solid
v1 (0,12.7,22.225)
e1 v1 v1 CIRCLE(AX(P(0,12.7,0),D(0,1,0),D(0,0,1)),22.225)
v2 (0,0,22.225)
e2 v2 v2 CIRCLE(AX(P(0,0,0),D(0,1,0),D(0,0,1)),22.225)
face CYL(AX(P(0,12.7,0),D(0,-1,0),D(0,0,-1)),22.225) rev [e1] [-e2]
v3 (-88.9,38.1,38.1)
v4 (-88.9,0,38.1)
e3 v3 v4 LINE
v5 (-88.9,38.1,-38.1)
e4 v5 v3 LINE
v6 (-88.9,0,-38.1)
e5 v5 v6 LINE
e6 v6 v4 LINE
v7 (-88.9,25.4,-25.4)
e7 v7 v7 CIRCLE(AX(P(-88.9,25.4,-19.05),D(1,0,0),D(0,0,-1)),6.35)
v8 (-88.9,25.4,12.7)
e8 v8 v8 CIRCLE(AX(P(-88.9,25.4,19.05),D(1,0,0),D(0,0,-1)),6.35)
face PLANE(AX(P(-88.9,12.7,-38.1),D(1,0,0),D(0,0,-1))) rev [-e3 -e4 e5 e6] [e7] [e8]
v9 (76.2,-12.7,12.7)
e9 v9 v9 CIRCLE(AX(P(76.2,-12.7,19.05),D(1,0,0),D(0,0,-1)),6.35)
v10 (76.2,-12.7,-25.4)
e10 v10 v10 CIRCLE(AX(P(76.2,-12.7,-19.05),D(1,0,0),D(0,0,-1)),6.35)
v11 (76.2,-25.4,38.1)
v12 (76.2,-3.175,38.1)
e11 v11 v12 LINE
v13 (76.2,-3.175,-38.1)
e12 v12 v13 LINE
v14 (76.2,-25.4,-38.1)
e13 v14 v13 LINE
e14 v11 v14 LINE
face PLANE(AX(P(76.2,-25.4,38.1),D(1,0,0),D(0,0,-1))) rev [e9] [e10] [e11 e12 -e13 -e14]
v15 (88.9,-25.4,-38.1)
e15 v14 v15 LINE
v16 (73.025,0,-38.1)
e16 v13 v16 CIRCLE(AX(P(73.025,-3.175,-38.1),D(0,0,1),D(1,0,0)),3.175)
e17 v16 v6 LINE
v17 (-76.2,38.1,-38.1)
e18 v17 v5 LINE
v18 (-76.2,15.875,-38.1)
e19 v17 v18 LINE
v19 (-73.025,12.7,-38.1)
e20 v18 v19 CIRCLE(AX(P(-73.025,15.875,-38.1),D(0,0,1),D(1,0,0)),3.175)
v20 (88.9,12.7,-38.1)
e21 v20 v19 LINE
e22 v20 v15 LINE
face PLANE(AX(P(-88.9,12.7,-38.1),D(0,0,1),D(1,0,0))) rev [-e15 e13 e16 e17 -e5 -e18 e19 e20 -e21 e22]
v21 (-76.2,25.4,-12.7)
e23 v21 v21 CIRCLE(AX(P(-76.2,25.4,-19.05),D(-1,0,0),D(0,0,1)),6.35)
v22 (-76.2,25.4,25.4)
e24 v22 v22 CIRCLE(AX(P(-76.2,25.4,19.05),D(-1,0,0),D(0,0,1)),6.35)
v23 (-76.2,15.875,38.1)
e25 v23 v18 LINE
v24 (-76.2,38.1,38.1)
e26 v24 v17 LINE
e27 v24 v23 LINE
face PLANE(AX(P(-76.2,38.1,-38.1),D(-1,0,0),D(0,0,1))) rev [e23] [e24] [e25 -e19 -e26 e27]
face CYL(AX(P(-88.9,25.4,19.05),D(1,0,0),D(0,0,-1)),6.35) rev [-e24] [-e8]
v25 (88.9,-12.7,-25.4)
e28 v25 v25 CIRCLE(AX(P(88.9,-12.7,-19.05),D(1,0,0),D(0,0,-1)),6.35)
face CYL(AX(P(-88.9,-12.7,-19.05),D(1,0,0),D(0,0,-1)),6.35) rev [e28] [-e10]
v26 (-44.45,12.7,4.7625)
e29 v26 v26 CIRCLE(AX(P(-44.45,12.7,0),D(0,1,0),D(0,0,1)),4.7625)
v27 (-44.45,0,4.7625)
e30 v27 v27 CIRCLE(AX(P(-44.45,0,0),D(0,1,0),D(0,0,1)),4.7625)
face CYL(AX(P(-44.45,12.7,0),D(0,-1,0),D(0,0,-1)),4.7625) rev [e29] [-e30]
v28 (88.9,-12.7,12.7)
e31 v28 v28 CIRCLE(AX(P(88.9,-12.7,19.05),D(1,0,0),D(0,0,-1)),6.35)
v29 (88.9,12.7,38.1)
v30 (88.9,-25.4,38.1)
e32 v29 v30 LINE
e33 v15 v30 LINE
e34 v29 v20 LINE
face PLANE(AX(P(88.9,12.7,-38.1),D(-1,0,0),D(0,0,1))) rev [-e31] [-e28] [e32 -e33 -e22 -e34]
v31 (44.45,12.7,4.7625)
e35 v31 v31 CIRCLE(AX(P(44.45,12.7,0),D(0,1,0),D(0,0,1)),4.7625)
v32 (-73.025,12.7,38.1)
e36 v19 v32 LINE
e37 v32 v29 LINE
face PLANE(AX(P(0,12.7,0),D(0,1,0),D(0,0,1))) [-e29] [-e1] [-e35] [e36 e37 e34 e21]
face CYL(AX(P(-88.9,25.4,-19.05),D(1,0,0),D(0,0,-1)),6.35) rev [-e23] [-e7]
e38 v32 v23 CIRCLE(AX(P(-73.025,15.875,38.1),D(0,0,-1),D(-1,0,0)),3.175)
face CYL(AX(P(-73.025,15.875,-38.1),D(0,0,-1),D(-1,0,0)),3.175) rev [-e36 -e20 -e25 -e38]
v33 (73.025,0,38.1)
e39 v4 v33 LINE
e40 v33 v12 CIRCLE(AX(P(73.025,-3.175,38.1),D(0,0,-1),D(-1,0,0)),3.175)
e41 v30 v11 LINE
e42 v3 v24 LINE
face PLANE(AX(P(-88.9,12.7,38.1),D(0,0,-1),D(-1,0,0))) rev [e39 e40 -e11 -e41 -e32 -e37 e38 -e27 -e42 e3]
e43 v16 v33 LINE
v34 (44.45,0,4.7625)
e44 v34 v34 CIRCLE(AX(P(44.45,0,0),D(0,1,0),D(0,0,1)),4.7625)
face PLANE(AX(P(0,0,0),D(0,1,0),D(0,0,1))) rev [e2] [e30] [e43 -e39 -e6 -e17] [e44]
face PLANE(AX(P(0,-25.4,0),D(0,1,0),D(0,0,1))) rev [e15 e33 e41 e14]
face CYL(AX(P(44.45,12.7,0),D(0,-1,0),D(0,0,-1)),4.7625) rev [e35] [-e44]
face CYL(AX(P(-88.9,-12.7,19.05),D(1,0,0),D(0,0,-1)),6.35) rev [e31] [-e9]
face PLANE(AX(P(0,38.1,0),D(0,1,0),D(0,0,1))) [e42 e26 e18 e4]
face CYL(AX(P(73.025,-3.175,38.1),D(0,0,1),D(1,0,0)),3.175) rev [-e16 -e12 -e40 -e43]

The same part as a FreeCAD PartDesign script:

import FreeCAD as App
import Part
import Sketcher
from FreeCAD import Vector
Q = App.Units.Quantity


def edges_at(feature, points):
    """Names of the edges that pass closest to the given points."""
    edges = feature.Shape.Edges
    near = lambda p: min(range(len(edges)), key=lambda i: edges[i].distToShape(Part.Vertex(*p))[0])
    return sorted({f"Edge{near(p) + 1}" for p in points})

doc = App.newDocument("Part")
params = doc.addObject("Spreadsheet::Sheet", "Params")
for row, (alias, value) in enumerate([
    ("sketch1_diameter", "1.75 in"),
    ("sketch1_width", "7 in"),
    ("sketch1_height", "3 in"),
    ("sketch1_diameter2", "0.375 in"),
    ("pad1_length", "0.5 in"),
    ("sketch2_height", "3 in"),
    ("sketch2_width", "0.5 in"),
    ("pad2_length", "1 in"),
    ("sketch3_height", "3 in"),
    ("sketch3_width", "0.5 in"),
    ("pad3_length", "1 in"),
    ("sketch4_diameter", "0.5 in"),
    ("fillet_radius", "0.125 in"),
], start=1):
    params.set(f"A{row}", alias)
    params.set(f"B{row}", "=" + value)
    params.setAlias(f"B{row}", alias)

body = doc.addObject("PartDesign::Body", "Body")

# Sketch on XZ plane
sketch1 = body.newObject("Sketcher::SketchObject", "Sketch")
sketch1.AttachmentSupport = (doc.getObject("XZ_Plane"), [""])
sketch1.MapMode = "FlatFace"
sketch1.addGeometry(Part.LineSegment(Vector(-88.9, -38.1, 0), Vector(-88.9, 38.1, 0)), False)
sketch1.addGeometry(Part.LineSegment(Vector(-88.9, 38.1, 0), Vector(88.9, 38.1, 0)), False)
sketch1.addGeometry(Part.LineSegment(Vector(88.9, 38.1, 0), Vector(88.9, -38.1, 0)), False)
sketch1.addGeometry(Part.LineSegment(Vector(88.9, -38.1, 0), Vector(-88.9, -38.1, 0)), False)
sketch1.addGeometry(Part.Circle(Vector(-44.45, 0, 0), Vector(0, 0, 1), 4.7625), False)
sketch1.addGeometry(Part.Circle(Vector(0, 0, 0), Vector(0, 0, 1), 22.225), False)
sketch1.addGeometry(Part.Circle(Vector(44.45, 0, 0), Vector(0, 0, 1), 4.7625), False)
sketch1.addConstraint(Sketcher.Constraint("Coincident", 0, 2, 1, 1))
sketch1.addConstraint(Sketcher.Constraint("Coincident", 1, 2, 2, 1))
sketch1.addConstraint(Sketcher.Constraint("Coincident", 2, 2, 3, 1))
sketch1.addConstraint(Sketcher.Constraint("Coincident", 3, 2, 0, 1))
sketch1.addConstraint(Sketcher.Constraint("Vertical", 0))
sketch1.addConstraint(Sketcher.Constraint("Horizontal", 1))
sketch1.addConstraint(Sketcher.Constraint("Vertical", 2))
sketch1.addConstraint(Sketcher.Constraint("Horizontal", 3))
sketch1.addConstraint(Sketcher.Constraint("Coincident", 5, 3, -1, 1))
sketch1.addConstraint(Sketcher.Constraint("Equal", 4, 6))
sketch1.addConstraint(Sketcher.Constraint("Symmetric", 4, 3, 6, 3, -1, 1))
sketch1.addConstraint(Sketcher.Constraint("Symmetric", 0, 2, 2, 2, -1, 1))
sketch1.addConstraint(Sketcher.Constraint("PointOnObject", 4, 3, -1))
sketch1.addConstraint(Sketcher.Constraint("Diameter", 5, Q("1.75 in")))
sketch1.addConstraint(Sketcher.Constraint("DistanceX", 1, 1, 1, 2, Q("7 in")))
sketch1.addConstraint(Sketcher.Constraint("DistanceY", 0, 1, 0, 2, Q("3 in")))
sketch1.addConstraint(Sketcher.Constraint("Diameter", 4, Q("0.375 in")))
sketch1.addConstraint(Sketcher.Constraint("DistanceX", 4, 3, 6, 3, Q("3.5 in")))
sketch1.setExpression("Constraints[13]", "Params.sketch1_diameter")
sketch1.setExpression("Constraints[14]", "Params.sketch1_width")
sketch1.setExpression("Constraints[15]", "Params.sketch1_height")
sketch1.setExpression("Constraints[16]", "Params.sketch1_diameter2")
pad1 = body.newObject("PartDesign::Pad", "Pad")
pad1.Profile = sketch1
pad1.setExpression("Length", "Params.pad1_length")
pad1.Reversed = True

# Sketch on XZ plane
sketch2 = body.newObject("Sketcher::SketchObject", "Sketch001")
sketch2.AttachmentSupport = (doc.getObject("XZ_Plane"), [""])
sketch2.MapMode = "FlatFace"
sketch2.AttachmentOffset = App.Placement(Vector(0, 0, -0.5 * 25.4), App.Rotation())
sketch2.addGeometry(Part.LineSegment(Vector(-88.9, -38.1, 0), Vector(-88.9, 38.1, 0)), False)
sketch2.addGeometry(Part.LineSegment(Vector(-88.9, 38.1, 0), Vector(-76.2, 38.1, 0)), False)
sketch2.addGeometry(Part.LineSegment(Vector(-76.2, 38.1, 0), Vector(-76.2, -38.1, 0)), False)
sketch2.addGeometry(Part.LineSegment(Vector(-76.2, -38.1, 0), Vector(-88.9, -38.1, 0)), False)
sketch2.addConstraint(Sketcher.Constraint("Coincident", 0, 2, 1, 1))
sketch2.addConstraint(Sketcher.Constraint("Coincident", 1, 2, 2, 1))
sketch2.addConstraint(Sketcher.Constraint("Coincident", 2, 2, 3, 1))
sketch2.addConstraint(Sketcher.Constraint("Coincident", 3, 2, 0, 1))
sketch2.addConstraint(Sketcher.Constraint("Vertical", 0))
sketch2.addConstraint(Sketcher.Constraint("Horizontal", 1))
sketch2.addConstraint(Sketcher.Constraint("Vertical", 2))
sketch2.addConstraint(Sketcher.Constraint("Horizontal", 3))
sketch2.addConstraint(Sketcher.Constraint("DistanceY", 0, 1, 0, 2, Q("3 in")))
sketch2.addConstraint(Sketcher.Constraint("DistanceX", 1, 1, 1, 2, Q("0.5 in")))
sketch2.addConstraint(Sketcher.Constraint("DistanceX", 1, 2, -1, 1, Q("3 in")))
sketch2.addConstraint(Sketcher.Constraint("DistanceY", -1, 1, 0, 2, Q("1.5 in")))
sketch2.setExpression("Constraints[8]", "Params.sketch2_height")
sketch2.setExpression("Constraints[9]", "Params.sketch2_width")
pad2 = body.newObject("PartDesign::Pad", "Pad001")
pad2.Profile = sketch2
pad2.setExpression("Length", "Params.pad2_length")
pad2.Reversed = True

# Sketch on XZ plane
sketch3 = body.newObject("Sketcher::SketchObject", "Sketch002")
sketch3.AttachmentSupport = (doc.getObject("XZ_Plane"), [""])
sketch3.MapMode = "FlatFace"
sketch3.addGeometry(Part.LineSegment(Vector(76.2, 38.1, 0), Vector(76.2, -38.1, 0)), False)
sketch3.addGeometry(Part.LineSegment(Vector(76.2, -38.1, 0), Vector(88.9, -38.1, 0)), False)
sketch3.addGeometry(Part.LineSegment(Vector(88.9, -38.1, 0), Vector(88.9, 38.1, 0)), False)
sketch3.addGeometry(Part.LineSegment(Vector(88.9, 38.1, 0), Vector(76.2, 38.1, 0)), False)
sketch3.addConstraint(Sketcher.Constraint("Coincident", 0, 2, 1, 1))
sketch3.addConstraint(Sketcher.Constraint("Coincident", 1, 2, 2, 1))
sketch3.addConstraint(Sketcher.Constraint("Coincident", 2, 2, 3, 1))
sketch3.addConstraint(Sketcher.Constraint("Coincident", 3, 2, 0, 1))
sketch3.addConstraint(Sketcher.Constraint("Vertical", 0))
sketch3.addConstraint(Sketcher.Constraint("Horizontal", 1))
sketch3.addConstraint(Sketcher.Constraint("Vertical", 2))
sketch3.addConstraint(Sketcher.Constraint("Horizontal", 3))
sketch3.addConstraint(Sketcher.Constraint("DistanceY", 0, 2, 0, 1, Q("3 in")))
sketch3.addConstraint(Sketcher.Constraint("DistanceX", 1, 1, 1, 2, Q("0.5 in")))
sketch3.addConstraint(Sketcher.Constraint("DistanceX", -1, 1, 0, 2, Q("3 in")))
sketch3.addConstraint(Sketcher.Constraint("DistanceY", 0, 2, -1, 1, Q("1.5 in")))
sketch3.setExpression("Constraints[8]", "Params.sketch3_height")
sketch3.setExpression("Constraints[9]", "Params.sketch3_width")
pad3 = body.newObject("PartDesign::Pad", "Pad002")
pad3.Profile = sketch3
pad3.setExpression("Length", "Params.pad3_length")

# Sketch on YZ plane
sketch4 = body.newObject("Sketcher::SketchObject", "Sketch003")
sketch4.AttachmentSupport = (doc.getObject("YZ_Plane"), [""])
sketch4.MapMode = "FlatFace"
sketch4.AttachmentOffset = App.Placement(Vector(0, 0, -3 * 25.4), App.Rotation())
sketch4.addGeometry(Part.Circle(Vector(25.4, 19.05, 0), Vector(0, 0, 1), 6.35), False)
sketch4.addGeometry(Part.Circle(Vector(25.4, -19.05, 0), Vector(0, 0, 1), 6.35), False)
sketch4.addGeometry(Part.Circle(Vector(-12.7, 19.05, 0), Vector(0, 0, 1), 6.35), False)
sketch4.addGeometry(Part.Circle(Vector(-12.7, -19.05, 0), Vector(0, 0, 1), 6.35), False)
sketch4.addConstraint(Sketcher.Constraint("Equal", 0, 1))
sketch4.addConstraint(Sketcher.Constraint("Equal", 1, 2))
sketch4.addConstraint(Sketcher.Constraint("Equal", 2, 3))
sketch4.addConstraint(Sketcher.Constraint("Symmetric", 0, 3, 1, 3, -1))
sketch4.addConstraint(Sketcher.Constraint("Symmetric", 2, 3, 3, 3, -1))
sketch4.addConstraint(Sketcher.Constraint("Horizontal", 0, 3, 2, 3))
sketch4.addConstraint(Sketcher.Constraint("Diameter", 0, Q("0.5 in")))
sketch4.addConstraint(Sketcher.Constraint("DistanceX", -1, 1, 0, 3, Q("1 in")))
sketch4.addConstraint(Sketcher.Constraint("DistanceX", 2, 3, -1, 1, Q("0.5 in")))
sketch4.addConstraint(Sketcher.Constraint("DistanceY", 1, 3, 0, 3, Q("1.5 in")))
sketch4.setExpression("Constraints[6]", "Params.sketch4_diameter")
pocket1 = body.newObject("PartDesign::Pocket", "Pocket")
pocket1.Profile = sketch4
pocket1.Type = "ThroughAll"
pocket1.Midplane = True
doc.recompute()

fillet = body.newObject("PartDesign::Fillet", "Fillet")
fillet.Base = (pocket1, edges_at(pocket1, [(-76.2, 12.7, 0), (76.2, 0, 0)]))
fillet.setExpression("Radius", "Params.fillet_radius")

doc.recompute()
